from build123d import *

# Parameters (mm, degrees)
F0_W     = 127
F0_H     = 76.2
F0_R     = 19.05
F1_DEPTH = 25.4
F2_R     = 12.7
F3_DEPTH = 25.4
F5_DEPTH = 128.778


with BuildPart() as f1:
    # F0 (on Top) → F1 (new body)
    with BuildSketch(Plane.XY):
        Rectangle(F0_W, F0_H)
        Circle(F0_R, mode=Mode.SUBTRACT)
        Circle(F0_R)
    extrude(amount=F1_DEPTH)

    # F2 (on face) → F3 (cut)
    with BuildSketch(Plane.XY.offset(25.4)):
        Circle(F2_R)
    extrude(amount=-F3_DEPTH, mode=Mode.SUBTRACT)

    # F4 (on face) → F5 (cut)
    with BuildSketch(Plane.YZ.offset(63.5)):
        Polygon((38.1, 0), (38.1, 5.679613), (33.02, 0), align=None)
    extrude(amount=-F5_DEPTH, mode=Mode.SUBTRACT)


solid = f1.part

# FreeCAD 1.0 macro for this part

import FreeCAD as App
import Part
import Sketcher

V = App.Vector
Q = App.Units.Quantity

doc = App.newDocument("Part")
params = doc.addObject("Spreadsheet::Sheet", "Params")
for row, (alias, value) in enumerate([
    ("sketch1_width", "5 in"),
    ("sketch1_height", "3 in"),
    ("pad1_length", "1 in"),
    ("sketch2_diameter", "1 in"),
    ("pocket1_length", "1 in"),
    ("sketch3_width", "0.2 in"),
    ("sketch3_length", "0.3 in"),
    ("pocket2_length", "5.07 in"),
], start=1):
    params.set(f"A{row}", alias)
    params.set(f"B{row}", "=" + value)
    params.setAlias(f"B{row}", alias)

body = doc.addObject("PartDesign::Body", "Body")

# Sketch on XY plane
sketch1 = body.newObject("Sketcher::SketchObject", "Sketch")
sketch1.AttachmentSupport = (doc.getObject("XY_Plane"), [""])
sketch1.MapMode = "FlatFace"
sketch1.addGeometry(Part.LineSegment(V(-64, 38, 0), V(-64, -38, 0)), False)
sketch1.addGeometry(Part.LineSegment(V(-64, -38, 0), V(64, -38, 0)), False)
sketch1.addGeometry(Part.LineSegment(V(64, -38, 0), V(64, 38, 0)), False)
sketch1.addGeometry(Part.LineSegment(V(64, 38, 0), V(-64, 38, 0)), False)
sketch1.addConstraint(Sketcher.Constraint("Coincident", 0, 2, 1, 1))
sketch1.addConstraint(Sketcher.Constraint("Coincident", 1, 2, 2, 1))
sketch1.addConstraint(Sketcher.Constraint("Coincident", 2, 2, 3, 1))
sketch1.addConstraint(Sketcher.Constraint("Coincident", 3, 2, 0, 1))
sketch1.addConstraint(Sketcher.Constraint("Vertical", 0))
sketch1.addConstraint(Sketcher.Constraint("Horizontal", 1))
sketch1.addConstraint(Sketcher.Constraint("Vertical", 2))
sketch1.addConstraint(Sketcher.Constraint("Horizontal", 3))
sketch1.addConstraint(Sketcher.Constraint("Symmetric", 0, 2, 2, 2, -1, 1))
sketch1.addConstraint(Sketcher.Constraint("DistanceX", 1, 1, 1, 2, Q("5 in")))
sketch1.addConstraint(Sketcher.Constraint("DistanceY", 0, 2, 0, 1, Q("3 in")))
sketch1.setExpression("Constraints[9]", "Params.sketch1_width")
sketch1.setExpression("Constraints[10]", "Params.sketch1_height")
pad1 = body.newObject("PartDesign::Pad", "Pad")
pad1.Profile = sketch1
pad1.setExpression("Length", "Params.pad1_length")

# Sketch on XY plane
sketch2 = body.newObject("Sketcher::SketchObject", "Sketch001")
sketch2.AttachmentSupport = (doc.getObject("XY_Plane"), [""])
sketch2.MapMode = "FlatFace"
sketch2.AttachmentOffset = App.Placement(V(0, 0, 1 * 25.4), App.Rotation())
sketch2.addGeometry(Part.Circle(V(0, 0, 0), V(0, 0, 1), 13), False)
sketch2.addConstraint(Sketcher.Constraint("Coincident", 0, 3, -1, 1))
sketch2.addConstraint(Sketcher.Constraint("Diameter", 0, Q("1 in")))
sketch2.setExpression("Constraints[1]", "Params.sketch2_diameter")
pocket1 = body.newObject("PartDesign::Pocket", "Pocket")
pocket1.Profile = sketch2
pocket1.setExpression("Length", "Params.pocket1_length")

# Sketch on YZ plane
sketch3 = body.newObject("Sketcher::SketchObject", "Sketch002")
sketch3.AttachmentSupport = (doc.getObject("YZ_Plane"), [""])
sketch3.MapMode = "FlatFace"
sketch3.AttachmentOffset = App.Placement(V(0, 0, 2.5 * 25.4), App.Rotation())
sketch3.addGeometry(Part.LineSegment(V(38, 0, 0), V(38, 6, 0)), False)
sketch3.addGeometry(Part.LineSegment(V(38, 6, 0), V(33, 0, 0)), False)
sketch3.addGeometry(Part.LineSegment(V(33, 0, 0), V(38, 0, 0)), False)
sketch3.addConstraint(Sketcher.Constraint("Coincident", 0, 2, 1, 1))
sketch3.addConstraint(Sketcher.Constraint("Coincident", 1, 2, 2, 1))
sketch3.addConstraint(Sketcher.Constraint("Coincident", 2, 2, 0, 1))
sketch3.addConstraint(Sketcher.Constraint("Vertical", 0))
sketch3.addConstraint(Sketcher.Constraint("Horizontal", 2))
sketch3.addConstraint(Sketcher.Constraint("PointOnObject", 1, 2, -1))
sketch3.addConstraint(Sketcher.Constraint("DistanceX", 2, 1, 2, 2, Q("0.2 in")))
sketch3.addConstraint(Sketcher.Constraint("Distance", 1, Q("0.3 in")))
sketch3.addConstraint(Sketcher.Constraint("DistanceX", -1, 1, 0, 2, Q("1.5 in")))
sketch3.setExpression("Constraints[6]", "Params.sketch3_width")
sketch3.setExpression("Constraints[7]", "Params.sketch3_length")
pocket2 = body.newObject("PartDesign::Pocket", "Pocket001")
pocket2.Profile = sketch3
pocket2.setExpression("Length", "Params.pocket2_length")

doc.recompute()
